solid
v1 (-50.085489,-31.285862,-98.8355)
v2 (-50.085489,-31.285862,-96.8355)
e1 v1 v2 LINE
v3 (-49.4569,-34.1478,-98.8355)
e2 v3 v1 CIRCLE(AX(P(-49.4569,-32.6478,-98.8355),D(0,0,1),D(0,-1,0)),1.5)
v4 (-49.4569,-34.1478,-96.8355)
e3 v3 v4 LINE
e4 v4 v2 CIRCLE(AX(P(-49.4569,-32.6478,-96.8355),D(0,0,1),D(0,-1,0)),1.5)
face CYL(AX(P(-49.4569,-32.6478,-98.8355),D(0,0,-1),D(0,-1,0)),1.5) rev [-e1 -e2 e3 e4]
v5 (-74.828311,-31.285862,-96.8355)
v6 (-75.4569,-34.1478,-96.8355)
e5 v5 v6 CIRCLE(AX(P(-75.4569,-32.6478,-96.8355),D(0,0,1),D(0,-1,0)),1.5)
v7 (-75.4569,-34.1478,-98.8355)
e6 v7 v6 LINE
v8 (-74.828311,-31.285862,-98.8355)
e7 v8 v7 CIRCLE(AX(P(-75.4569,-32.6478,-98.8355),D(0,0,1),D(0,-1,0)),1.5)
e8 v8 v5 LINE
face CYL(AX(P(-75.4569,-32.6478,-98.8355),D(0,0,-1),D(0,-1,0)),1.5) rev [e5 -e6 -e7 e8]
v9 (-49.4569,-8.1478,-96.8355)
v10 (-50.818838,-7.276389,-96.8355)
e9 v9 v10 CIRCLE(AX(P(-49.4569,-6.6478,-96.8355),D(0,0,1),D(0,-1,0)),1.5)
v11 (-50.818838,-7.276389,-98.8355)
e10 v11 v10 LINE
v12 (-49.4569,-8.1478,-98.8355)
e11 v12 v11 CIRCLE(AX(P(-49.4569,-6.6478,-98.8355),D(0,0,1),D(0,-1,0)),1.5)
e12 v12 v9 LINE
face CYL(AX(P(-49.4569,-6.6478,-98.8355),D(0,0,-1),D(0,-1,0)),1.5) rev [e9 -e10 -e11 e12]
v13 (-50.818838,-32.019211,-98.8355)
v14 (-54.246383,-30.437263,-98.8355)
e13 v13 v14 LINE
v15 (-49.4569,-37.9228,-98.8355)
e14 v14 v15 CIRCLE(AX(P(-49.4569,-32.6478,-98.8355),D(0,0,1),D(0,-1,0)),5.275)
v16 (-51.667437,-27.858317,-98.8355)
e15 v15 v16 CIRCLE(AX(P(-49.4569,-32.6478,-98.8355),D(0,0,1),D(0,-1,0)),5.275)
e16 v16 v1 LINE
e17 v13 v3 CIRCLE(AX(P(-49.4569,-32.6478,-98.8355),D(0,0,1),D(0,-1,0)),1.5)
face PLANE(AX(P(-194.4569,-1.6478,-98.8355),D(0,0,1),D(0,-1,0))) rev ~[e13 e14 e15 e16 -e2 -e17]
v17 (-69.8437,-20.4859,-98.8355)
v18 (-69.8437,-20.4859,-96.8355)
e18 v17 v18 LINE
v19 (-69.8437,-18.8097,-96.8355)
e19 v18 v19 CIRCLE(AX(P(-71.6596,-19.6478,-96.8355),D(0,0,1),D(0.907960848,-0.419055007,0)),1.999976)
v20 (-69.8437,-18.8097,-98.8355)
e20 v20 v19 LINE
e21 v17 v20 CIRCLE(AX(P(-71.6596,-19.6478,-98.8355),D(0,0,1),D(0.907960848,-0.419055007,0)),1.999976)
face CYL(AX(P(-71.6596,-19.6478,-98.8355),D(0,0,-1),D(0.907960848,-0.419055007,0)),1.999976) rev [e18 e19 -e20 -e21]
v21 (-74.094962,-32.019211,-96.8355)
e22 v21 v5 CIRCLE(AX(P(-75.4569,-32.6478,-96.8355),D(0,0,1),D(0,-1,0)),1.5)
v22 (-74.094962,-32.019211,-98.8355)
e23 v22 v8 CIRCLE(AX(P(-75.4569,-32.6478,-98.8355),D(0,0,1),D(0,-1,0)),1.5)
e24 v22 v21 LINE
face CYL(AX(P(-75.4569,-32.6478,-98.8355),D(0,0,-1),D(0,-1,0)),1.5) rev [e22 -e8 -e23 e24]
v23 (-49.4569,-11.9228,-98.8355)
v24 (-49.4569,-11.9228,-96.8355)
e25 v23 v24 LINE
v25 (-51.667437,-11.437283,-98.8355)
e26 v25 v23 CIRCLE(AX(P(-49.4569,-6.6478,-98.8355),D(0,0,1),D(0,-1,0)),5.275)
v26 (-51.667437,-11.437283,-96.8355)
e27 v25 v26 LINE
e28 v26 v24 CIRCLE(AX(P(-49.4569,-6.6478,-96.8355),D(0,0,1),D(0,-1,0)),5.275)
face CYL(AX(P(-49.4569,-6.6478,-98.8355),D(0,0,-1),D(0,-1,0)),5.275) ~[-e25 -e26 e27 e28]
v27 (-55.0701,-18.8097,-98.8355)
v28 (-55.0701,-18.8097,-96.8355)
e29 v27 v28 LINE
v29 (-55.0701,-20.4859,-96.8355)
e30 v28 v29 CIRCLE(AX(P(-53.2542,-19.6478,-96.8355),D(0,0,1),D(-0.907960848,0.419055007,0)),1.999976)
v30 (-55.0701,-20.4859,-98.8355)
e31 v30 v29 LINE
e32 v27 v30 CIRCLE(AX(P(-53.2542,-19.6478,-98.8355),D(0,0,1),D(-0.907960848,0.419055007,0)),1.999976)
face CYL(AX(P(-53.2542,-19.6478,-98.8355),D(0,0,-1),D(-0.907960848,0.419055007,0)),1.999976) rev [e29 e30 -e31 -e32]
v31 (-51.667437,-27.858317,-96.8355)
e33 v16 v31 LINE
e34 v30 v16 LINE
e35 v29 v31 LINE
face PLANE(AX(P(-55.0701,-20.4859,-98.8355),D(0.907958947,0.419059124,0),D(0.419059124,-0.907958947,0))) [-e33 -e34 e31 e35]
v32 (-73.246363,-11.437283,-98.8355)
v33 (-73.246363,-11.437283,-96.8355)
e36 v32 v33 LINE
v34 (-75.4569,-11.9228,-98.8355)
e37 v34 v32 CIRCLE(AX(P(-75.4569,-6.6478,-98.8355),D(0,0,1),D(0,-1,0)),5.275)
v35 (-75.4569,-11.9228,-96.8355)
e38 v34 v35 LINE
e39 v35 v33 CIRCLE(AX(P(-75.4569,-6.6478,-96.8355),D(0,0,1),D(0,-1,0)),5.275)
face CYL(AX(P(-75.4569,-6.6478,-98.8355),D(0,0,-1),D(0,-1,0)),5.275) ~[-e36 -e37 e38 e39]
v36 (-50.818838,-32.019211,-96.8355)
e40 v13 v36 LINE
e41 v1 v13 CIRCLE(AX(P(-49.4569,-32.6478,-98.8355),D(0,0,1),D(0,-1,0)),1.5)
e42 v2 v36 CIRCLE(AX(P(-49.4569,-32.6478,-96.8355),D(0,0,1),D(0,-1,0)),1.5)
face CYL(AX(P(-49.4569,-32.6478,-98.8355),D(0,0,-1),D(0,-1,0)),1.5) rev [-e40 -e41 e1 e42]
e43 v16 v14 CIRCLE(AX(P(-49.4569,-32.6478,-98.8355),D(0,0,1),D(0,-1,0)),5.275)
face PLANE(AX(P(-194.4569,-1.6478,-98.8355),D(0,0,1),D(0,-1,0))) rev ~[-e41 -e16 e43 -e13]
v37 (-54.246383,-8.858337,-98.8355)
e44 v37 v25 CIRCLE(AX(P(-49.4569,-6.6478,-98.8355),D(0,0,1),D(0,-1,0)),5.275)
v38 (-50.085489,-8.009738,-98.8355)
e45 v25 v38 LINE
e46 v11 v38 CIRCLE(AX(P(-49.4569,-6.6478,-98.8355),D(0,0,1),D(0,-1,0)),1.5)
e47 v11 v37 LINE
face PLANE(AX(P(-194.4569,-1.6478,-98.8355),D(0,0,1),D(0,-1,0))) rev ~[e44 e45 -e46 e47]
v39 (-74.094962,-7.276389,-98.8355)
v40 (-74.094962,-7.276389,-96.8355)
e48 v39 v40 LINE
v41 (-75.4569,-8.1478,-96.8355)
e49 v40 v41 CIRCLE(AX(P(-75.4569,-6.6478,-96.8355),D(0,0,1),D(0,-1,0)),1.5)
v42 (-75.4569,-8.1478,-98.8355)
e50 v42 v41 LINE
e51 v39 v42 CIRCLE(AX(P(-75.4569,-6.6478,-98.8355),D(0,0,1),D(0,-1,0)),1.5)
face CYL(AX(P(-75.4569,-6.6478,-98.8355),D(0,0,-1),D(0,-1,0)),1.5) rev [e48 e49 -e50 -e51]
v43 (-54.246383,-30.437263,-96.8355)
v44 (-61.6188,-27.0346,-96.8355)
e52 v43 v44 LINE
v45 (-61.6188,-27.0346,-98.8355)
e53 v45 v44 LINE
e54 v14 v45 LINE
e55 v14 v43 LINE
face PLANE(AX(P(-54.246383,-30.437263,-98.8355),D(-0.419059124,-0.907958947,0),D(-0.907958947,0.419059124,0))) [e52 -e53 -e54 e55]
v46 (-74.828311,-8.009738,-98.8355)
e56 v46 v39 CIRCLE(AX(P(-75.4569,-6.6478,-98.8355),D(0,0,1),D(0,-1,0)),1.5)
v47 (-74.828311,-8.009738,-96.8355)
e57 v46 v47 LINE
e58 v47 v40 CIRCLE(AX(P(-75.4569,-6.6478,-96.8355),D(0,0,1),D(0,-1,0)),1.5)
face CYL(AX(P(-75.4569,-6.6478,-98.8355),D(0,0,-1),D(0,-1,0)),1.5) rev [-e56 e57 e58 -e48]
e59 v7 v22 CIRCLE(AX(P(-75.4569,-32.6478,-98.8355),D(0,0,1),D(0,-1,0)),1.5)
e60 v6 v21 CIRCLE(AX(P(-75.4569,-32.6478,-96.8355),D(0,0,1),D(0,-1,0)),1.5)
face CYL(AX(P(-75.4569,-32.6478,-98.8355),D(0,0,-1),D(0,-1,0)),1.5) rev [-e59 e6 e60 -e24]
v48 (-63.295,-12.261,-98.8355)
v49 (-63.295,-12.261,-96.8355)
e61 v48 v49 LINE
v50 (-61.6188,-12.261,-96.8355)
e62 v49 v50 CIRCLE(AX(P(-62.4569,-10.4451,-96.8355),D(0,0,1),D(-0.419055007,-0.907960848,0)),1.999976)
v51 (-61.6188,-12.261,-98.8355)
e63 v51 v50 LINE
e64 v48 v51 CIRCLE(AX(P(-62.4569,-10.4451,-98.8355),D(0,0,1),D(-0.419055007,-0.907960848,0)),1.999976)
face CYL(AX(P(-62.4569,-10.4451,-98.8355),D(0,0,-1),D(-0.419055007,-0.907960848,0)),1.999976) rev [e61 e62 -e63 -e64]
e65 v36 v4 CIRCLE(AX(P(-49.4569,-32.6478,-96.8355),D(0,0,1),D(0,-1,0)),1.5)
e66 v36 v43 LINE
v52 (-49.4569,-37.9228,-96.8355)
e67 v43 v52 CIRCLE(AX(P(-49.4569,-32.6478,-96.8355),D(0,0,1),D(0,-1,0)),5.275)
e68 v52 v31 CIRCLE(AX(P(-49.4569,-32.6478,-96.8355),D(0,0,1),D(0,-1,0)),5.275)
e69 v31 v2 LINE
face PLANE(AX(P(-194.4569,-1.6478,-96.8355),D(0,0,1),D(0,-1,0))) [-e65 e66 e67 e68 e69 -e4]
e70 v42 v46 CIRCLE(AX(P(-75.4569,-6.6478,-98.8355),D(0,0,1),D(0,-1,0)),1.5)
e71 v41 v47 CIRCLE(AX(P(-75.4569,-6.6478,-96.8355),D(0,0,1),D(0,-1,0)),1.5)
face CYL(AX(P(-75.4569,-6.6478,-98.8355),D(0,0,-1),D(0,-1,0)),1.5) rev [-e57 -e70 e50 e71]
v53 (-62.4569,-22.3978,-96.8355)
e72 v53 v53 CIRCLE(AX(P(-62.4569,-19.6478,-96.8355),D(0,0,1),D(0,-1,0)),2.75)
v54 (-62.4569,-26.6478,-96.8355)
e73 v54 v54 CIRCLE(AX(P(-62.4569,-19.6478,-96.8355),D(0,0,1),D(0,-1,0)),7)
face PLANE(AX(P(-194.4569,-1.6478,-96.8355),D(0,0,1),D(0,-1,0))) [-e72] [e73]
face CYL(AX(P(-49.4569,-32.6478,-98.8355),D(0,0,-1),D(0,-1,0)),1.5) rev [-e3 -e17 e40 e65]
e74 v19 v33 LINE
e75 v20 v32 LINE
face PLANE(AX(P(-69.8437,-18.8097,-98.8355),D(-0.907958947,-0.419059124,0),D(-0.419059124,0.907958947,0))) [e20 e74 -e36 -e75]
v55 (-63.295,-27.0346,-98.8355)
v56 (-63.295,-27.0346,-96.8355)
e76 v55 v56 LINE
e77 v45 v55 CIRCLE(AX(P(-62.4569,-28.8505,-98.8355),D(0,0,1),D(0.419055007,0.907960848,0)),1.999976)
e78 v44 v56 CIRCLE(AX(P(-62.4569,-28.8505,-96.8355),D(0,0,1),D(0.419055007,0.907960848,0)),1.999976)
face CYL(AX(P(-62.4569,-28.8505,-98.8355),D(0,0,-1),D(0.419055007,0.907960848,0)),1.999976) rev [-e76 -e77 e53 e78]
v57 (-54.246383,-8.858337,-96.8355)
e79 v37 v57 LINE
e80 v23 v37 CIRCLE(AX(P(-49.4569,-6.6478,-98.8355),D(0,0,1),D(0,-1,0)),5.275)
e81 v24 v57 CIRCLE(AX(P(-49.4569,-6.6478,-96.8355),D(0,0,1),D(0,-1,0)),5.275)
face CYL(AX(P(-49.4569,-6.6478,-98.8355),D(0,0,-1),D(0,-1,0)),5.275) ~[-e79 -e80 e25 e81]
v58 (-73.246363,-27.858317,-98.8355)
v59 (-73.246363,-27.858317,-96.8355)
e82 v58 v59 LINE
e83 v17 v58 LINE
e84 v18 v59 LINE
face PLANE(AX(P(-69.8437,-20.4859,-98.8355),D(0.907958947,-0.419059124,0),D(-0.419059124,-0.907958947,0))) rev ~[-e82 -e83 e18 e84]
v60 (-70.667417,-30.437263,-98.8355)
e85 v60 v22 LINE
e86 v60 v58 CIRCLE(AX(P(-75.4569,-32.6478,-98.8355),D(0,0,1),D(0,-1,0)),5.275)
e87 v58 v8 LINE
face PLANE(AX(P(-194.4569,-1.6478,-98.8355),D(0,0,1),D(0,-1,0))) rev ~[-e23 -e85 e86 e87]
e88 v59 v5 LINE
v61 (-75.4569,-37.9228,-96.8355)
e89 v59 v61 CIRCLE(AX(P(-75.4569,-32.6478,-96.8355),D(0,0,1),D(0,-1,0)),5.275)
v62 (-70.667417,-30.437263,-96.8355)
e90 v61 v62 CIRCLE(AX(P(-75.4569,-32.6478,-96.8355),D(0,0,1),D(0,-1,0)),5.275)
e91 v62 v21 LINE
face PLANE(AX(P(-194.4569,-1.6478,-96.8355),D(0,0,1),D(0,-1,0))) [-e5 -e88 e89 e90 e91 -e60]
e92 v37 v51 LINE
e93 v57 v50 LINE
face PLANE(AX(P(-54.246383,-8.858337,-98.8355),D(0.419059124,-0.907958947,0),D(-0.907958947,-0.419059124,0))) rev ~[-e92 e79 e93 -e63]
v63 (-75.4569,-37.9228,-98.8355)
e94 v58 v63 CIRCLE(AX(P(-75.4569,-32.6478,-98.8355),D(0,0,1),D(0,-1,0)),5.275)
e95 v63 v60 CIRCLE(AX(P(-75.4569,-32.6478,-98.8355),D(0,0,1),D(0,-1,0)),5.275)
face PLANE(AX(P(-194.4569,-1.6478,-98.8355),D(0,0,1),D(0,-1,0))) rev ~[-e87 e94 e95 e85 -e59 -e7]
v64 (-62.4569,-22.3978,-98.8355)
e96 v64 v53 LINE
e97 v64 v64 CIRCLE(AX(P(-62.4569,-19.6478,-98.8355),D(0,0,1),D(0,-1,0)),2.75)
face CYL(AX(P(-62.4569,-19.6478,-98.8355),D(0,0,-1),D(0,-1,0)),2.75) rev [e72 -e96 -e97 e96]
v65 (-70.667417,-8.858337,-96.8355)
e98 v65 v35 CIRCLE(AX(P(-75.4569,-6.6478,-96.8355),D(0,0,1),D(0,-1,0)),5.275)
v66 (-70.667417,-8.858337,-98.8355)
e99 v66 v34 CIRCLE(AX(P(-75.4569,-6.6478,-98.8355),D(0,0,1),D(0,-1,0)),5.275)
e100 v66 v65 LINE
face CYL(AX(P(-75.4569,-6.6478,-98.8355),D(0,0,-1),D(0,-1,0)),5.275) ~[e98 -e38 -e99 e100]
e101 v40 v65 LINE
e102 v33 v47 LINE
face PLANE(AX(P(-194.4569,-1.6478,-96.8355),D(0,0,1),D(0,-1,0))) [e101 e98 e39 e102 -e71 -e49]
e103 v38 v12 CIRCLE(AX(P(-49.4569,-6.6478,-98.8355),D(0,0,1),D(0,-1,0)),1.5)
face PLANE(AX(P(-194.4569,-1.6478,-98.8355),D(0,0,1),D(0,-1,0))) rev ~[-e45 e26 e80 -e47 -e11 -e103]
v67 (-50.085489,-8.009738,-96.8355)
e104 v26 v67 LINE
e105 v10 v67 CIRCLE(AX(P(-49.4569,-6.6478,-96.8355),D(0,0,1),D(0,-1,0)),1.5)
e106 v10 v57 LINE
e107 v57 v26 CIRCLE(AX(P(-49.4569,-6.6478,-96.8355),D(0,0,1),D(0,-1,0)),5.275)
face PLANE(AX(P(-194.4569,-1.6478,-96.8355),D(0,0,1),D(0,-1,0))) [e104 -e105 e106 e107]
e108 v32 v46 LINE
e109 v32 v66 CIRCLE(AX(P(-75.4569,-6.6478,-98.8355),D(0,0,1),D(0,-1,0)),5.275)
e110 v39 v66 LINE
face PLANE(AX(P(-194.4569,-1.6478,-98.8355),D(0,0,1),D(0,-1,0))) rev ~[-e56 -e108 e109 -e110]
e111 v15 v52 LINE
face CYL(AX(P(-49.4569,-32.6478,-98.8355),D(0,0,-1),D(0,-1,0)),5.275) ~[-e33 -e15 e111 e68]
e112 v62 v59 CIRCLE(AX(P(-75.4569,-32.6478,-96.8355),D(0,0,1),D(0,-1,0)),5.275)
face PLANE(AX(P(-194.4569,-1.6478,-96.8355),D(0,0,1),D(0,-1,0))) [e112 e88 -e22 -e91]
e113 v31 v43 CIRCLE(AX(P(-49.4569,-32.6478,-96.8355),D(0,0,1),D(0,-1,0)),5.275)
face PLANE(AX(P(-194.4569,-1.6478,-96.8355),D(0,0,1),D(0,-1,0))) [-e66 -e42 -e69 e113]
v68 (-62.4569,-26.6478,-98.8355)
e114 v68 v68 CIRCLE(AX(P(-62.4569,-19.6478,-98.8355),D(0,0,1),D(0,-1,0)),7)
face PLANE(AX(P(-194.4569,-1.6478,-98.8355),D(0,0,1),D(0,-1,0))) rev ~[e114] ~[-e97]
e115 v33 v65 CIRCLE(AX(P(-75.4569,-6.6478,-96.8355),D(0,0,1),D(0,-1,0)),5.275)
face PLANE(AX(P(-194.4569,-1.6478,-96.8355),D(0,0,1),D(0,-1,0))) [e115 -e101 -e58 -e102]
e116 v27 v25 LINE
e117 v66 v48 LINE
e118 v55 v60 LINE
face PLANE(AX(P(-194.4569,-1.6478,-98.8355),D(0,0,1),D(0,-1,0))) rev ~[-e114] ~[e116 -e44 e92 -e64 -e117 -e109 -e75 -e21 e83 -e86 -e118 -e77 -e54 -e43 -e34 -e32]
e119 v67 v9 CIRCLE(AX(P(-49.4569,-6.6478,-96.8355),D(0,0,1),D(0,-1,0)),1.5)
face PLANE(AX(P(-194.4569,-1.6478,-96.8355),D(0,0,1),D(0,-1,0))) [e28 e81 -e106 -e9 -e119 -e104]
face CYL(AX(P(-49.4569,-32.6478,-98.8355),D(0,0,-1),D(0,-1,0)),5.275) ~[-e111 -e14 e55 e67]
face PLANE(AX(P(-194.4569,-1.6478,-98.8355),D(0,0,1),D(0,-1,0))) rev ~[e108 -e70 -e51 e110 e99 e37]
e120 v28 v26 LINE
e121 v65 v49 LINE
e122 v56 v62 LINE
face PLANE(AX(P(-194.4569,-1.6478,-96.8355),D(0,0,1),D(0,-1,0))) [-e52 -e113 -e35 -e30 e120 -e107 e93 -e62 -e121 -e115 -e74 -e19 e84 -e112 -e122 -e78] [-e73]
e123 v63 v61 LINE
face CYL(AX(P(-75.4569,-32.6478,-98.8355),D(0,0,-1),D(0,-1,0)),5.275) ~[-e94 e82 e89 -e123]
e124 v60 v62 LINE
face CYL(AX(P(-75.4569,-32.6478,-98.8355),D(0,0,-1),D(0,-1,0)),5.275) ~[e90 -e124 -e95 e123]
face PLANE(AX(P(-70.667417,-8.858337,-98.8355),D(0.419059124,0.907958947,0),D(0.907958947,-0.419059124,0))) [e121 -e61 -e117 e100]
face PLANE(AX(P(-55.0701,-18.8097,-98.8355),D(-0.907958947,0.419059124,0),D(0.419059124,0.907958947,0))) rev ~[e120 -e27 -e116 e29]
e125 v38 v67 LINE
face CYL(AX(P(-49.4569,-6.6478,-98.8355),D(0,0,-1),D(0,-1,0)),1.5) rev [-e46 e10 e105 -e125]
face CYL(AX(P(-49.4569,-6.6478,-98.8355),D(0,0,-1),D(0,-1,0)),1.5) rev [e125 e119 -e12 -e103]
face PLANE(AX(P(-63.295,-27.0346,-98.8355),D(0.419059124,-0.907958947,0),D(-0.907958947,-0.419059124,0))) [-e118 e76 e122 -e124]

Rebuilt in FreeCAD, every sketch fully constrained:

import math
import FreeCAD as App
import Part
import Sketcher

V = App.Vector
Q = App.Units.Quantity

doc = App.newDocument("Part")
params = doc.addObject("Spreadsheet::Sheet", "Params")
for row, (alias, value) in enumerate([
    ("sketch1_radius", "2 mm"),
    ("sketch1_diameter", "5.5 mm"),
    ("sketch1_diameter2", "3 mm"),
    ("pad1_length", "2 mm"),
], start=1):
    params.set(f"A{row}", alias)
    params.set(f"B{row}", "=" + value)
    params.setAlias(f"B{row}", alias)

body = doc.addObject("PartDesign::Body", "Body")

# Sketch on XY plane
sketch1 = doc.addObject("Sketcher::SketchObject", "Sketch")
body.addObject(sketch1)
sketch1.AttachmentSupport = (doc.XY_Plane, [""])
sketch1.MapMode = "FlatFace"
sketch1.AttachmentOffset = App.Placement(V(0, 0, -98.8355), App.Rotation())
sketch1.addGeometry([
    Part.LineSegment(V(-54.2, -8.9, 0), V(-61.6, -12.3, 0)),  # 0
    Part.ArcOfCircle(Part.Circle(V(-62.5, -10.4, 0), V(0, 0, 1), 2), math.radians(-115), math.radians(-65)),  # 1
    Part.LineSegment(V(-63.3, -12.3, 0), V(-70.7, -8.9, 0)),  # 2
    Part.ArcOfCircle(Part.Circle(V(-75.5, -6.6, 0), V(0, 0, 1), 5.3), math.radians(-25), math.radians(295)),  # 3
    Part.LineSegment(V(-73.2, -11.4, 0), V(-69.8, -18.8, 0)),  # 4
    Part.ArcOfCircle(Part.Circle(V(-71.7, -19.6, 0), V(0, 0, 1), 2), math.radians(-25), math.radians(25)),  # 5
    Part.LineSegment(V(-69.8, -20.5, 0), V(-73.2, -27.9, 0)),  # 6
    Part.ArcOfCircle(Part.Circle(V(-75.5, -32.6, 0), V(0, 0, 1), 5.3), math.radians(65), math.radians(385)),  # 7
    Part.LineSegment(V(-70.7, -30.4, 0), V(-63.3, -27, 0)),  # 8
    Part.ArcOfCircle(Part.Circle(V(-62.5, -28.9, 0), V(0, 0, 1), 2), math.radians(65), math.radians(115)),  # 9
    Part.LineSegment(V(-61.6, -27, 0), V(-54.2, -30.4, 0)),  # 10
    Part.ArcOfCircle(Part.Circle(V(-49.5, -32.6, 0), V(0, 0, 1), 5.3), math.radians(155), math.radians(475)),  # 11
    Part.LineSegment(V(-51.7, -27.9, 0), V(-55.1, -20.5, 0)),  # 12
    Part.ArcOfCircle(Part.Circle(V(-53.3, -19.6, 0), V(0, 0, 1), 2), math.radians(155), math.radians(205)),  # 13
    Part.LineSegment(V(-55.1, -18.8, 0), V(-51.7, -11.4, 0)),  # 14
    Part.ArcOfCircle(Part.Circle(V(-49.5, -6.6, 0), V(0, 0, 1), 5.3), math.radians(-115), math.radians(205)),  # 15
    Part.Circle(V(-49.5, -6.6, 0), V(0, 0, 1), 1.5),  # 16
    Part.Circle(V(-62.5, -19.6, 0), V(0, 0, 1), 2.8),  # 17
    Part.Circle(V(-49.5, -32.6, 0), V(0, 0, 1), 1.5),  # 18
    Part.Circle(V(-75.5, -32.6, 0), V(0, 0, 1), 1.5),  # 19
    Part.Circle(V(-75.5, -6.6, 0), V(0, 0, 1), 1.5),  # 20
], False)
sketch1.addConstraint([
    Sketcher.Constraint("Tangent", 0, 2, 1, 2),
    Sketcher.Constraint("Tangent", 1, 1, 2, 1),
    Sketcher.Constraint("Coincident", 2, 2, 3, 1),
    Sketcher.Constraint("Coincident", 3, 2, 4, 1),
    Sketcher.Constraint("Tangent", 4, 2, 5, 2),
    Sketcher.Constraint("Tangent", 5, 1, 6, 1),
    Sketcher.Constraint("Coincident", 6, 2, 7, 1),
    Sketcher.Constraint("Coincident", 7, 2, 8, 1),
    Sketcher.Constraint("Tangent", 8, 2, 9, 2),
    Sketcher.Constraint("Tangent", 9, 1, 10, 1),
    Sketcher.Constraint("Coincident", 10, 2, 11, 1),
    Sketcher.Constraint("Coincident", 11, 2, 12, 1),
    Sketcher.Constraint("Tangent", 12, 2, 13, 2),
    Sketcher.Constraint("Tangent", 13, 1, 14, 1),
    Sketcher.Constraint("Coincident", 14, 2, 15, 1),
    Sketcher.Constraint("Coincident", 15, 2, 0, 1),
    Sketcher.Constraint("Coincident", 16, 3, 15, 3),
    Sketcher.Constraint("Coincident", 18, 3, 11, 3),
    Sketcher.Constraint("Coincident", 19, 3, 7, 3),
    Sketcher.Constraint("Coincident", 20, 3, 3, 3),
    Sketcher.Constraint("Equal", 1, 5),
    Sketcher.Constraint("Equal", 3, 7),
    Sketcher.Constraint("Equal", 5, 9),
    Sketcher.Constraint("Equal", 7, 11),
    Sketcher.Constraint("Equal", 9, 13),
    Sketcher.Constraint("Equal", 11, 15),
    Sketcher.Constraint("Equal", 16, 18),
    Sketcher.Constraint("Equal", 18, 19),
    Sketcher.Constraint("Equal", 19, 20),
    Sketcher.Constraint("Perpendicular", 0, 4),
    Sketcher.Constraint("Perpendicular", 2, 6),
    Sketcher.Constraint("Perpendicular", 4, 8),
    Sketcher.Constraint("Perpendicular", 6, 10),
    Sketcher.Constraint("Perpendicular", 8, 12),
    Sketcher.Constraint("Perpendicular", 10, 14),
    Sketcher.Constraint("Horizontal", 7, 3, 11, 3),
    Sketcher.Constraint("Horizontal", 5, 3, 13, 3),
    Sketcher.Constraint("Horizontal", 3, 3, 15, 3),
    Sketcher.Constraint("Horizontal", 13, 3, 17, 3),
    Sketcher.Constraint("Horizontal", 0, 2, 1, 1),
    Sketcher.Constraint("Horizontal", 7, 2, 10, 2),
    Sketcher.Constraint("Horizontal", 6, 2, 11, 2),
    Sketcher.Constraint("Horizontal", 3, 2, 14, 2),
    Sketcher.Constraint("Horizontal", 2, 2, 15, 2),
    Sketcher.Constraint("Vertical", 3, 3, 7, 3),
    Sketcher.Constraint("Vertical", 9, 3, 17, 3),
    Sketcher.Constraint("Vertical", 3, 2, 6, 2),
    Sketcher.Constraint("Vertical", 2, 2, 7, 2),
    Sketcher.Constraint("Equal", 2, 4),
    Sketcher.Constraint("Radius", 1, Q("2 mm")),
    Sketcher.Constraint("Diameter", 17, Q("5.5 mm")),
    Sketcher.Constraint("Diameter", 16, Q("3 mm")),
    Sketcher.Constraint("Radius", 3, Q("5.275 mm")),
    Sketcher.Constraint("DistanceX", 3, 3, 1, 3, Q("13 mm")),
    Sketcher.Constraint("DistanceY", 5, 3, 3, 3, Q("13 mm")),
    Sketcher.Constraint("DistanceX", 12, 2, -1, 1, Q("55.07 mm")),
    Sketcher.Constraint("DistanceX", 1, 3, -1, 1, Q("62.457 mm")),
    Sketcher.Constraint("DistanceY", 1, 3, -1, 1, Q("10.445 mm")),
    Sketcher.Constraint("DistanceY", 0, 2, -1, 1, Q("12.261 mm")),
])
sketch1.setExpression("Constraints[49]", "Params.sketch1_radius")
sketch1.setExpression("Constraints[50]", "Params.sketch1_diameter")
sketch1.setExpression("Constraints[51]", "Params.sketch1_diameter2")
pad1 = doc.addObject("PartDesign::Pad", "Pad")
body.addObject(pad1)
pad1.Profile = sketch1
pad1.setExpression("Length", "Params.pad1_length")

doc.recompute()
